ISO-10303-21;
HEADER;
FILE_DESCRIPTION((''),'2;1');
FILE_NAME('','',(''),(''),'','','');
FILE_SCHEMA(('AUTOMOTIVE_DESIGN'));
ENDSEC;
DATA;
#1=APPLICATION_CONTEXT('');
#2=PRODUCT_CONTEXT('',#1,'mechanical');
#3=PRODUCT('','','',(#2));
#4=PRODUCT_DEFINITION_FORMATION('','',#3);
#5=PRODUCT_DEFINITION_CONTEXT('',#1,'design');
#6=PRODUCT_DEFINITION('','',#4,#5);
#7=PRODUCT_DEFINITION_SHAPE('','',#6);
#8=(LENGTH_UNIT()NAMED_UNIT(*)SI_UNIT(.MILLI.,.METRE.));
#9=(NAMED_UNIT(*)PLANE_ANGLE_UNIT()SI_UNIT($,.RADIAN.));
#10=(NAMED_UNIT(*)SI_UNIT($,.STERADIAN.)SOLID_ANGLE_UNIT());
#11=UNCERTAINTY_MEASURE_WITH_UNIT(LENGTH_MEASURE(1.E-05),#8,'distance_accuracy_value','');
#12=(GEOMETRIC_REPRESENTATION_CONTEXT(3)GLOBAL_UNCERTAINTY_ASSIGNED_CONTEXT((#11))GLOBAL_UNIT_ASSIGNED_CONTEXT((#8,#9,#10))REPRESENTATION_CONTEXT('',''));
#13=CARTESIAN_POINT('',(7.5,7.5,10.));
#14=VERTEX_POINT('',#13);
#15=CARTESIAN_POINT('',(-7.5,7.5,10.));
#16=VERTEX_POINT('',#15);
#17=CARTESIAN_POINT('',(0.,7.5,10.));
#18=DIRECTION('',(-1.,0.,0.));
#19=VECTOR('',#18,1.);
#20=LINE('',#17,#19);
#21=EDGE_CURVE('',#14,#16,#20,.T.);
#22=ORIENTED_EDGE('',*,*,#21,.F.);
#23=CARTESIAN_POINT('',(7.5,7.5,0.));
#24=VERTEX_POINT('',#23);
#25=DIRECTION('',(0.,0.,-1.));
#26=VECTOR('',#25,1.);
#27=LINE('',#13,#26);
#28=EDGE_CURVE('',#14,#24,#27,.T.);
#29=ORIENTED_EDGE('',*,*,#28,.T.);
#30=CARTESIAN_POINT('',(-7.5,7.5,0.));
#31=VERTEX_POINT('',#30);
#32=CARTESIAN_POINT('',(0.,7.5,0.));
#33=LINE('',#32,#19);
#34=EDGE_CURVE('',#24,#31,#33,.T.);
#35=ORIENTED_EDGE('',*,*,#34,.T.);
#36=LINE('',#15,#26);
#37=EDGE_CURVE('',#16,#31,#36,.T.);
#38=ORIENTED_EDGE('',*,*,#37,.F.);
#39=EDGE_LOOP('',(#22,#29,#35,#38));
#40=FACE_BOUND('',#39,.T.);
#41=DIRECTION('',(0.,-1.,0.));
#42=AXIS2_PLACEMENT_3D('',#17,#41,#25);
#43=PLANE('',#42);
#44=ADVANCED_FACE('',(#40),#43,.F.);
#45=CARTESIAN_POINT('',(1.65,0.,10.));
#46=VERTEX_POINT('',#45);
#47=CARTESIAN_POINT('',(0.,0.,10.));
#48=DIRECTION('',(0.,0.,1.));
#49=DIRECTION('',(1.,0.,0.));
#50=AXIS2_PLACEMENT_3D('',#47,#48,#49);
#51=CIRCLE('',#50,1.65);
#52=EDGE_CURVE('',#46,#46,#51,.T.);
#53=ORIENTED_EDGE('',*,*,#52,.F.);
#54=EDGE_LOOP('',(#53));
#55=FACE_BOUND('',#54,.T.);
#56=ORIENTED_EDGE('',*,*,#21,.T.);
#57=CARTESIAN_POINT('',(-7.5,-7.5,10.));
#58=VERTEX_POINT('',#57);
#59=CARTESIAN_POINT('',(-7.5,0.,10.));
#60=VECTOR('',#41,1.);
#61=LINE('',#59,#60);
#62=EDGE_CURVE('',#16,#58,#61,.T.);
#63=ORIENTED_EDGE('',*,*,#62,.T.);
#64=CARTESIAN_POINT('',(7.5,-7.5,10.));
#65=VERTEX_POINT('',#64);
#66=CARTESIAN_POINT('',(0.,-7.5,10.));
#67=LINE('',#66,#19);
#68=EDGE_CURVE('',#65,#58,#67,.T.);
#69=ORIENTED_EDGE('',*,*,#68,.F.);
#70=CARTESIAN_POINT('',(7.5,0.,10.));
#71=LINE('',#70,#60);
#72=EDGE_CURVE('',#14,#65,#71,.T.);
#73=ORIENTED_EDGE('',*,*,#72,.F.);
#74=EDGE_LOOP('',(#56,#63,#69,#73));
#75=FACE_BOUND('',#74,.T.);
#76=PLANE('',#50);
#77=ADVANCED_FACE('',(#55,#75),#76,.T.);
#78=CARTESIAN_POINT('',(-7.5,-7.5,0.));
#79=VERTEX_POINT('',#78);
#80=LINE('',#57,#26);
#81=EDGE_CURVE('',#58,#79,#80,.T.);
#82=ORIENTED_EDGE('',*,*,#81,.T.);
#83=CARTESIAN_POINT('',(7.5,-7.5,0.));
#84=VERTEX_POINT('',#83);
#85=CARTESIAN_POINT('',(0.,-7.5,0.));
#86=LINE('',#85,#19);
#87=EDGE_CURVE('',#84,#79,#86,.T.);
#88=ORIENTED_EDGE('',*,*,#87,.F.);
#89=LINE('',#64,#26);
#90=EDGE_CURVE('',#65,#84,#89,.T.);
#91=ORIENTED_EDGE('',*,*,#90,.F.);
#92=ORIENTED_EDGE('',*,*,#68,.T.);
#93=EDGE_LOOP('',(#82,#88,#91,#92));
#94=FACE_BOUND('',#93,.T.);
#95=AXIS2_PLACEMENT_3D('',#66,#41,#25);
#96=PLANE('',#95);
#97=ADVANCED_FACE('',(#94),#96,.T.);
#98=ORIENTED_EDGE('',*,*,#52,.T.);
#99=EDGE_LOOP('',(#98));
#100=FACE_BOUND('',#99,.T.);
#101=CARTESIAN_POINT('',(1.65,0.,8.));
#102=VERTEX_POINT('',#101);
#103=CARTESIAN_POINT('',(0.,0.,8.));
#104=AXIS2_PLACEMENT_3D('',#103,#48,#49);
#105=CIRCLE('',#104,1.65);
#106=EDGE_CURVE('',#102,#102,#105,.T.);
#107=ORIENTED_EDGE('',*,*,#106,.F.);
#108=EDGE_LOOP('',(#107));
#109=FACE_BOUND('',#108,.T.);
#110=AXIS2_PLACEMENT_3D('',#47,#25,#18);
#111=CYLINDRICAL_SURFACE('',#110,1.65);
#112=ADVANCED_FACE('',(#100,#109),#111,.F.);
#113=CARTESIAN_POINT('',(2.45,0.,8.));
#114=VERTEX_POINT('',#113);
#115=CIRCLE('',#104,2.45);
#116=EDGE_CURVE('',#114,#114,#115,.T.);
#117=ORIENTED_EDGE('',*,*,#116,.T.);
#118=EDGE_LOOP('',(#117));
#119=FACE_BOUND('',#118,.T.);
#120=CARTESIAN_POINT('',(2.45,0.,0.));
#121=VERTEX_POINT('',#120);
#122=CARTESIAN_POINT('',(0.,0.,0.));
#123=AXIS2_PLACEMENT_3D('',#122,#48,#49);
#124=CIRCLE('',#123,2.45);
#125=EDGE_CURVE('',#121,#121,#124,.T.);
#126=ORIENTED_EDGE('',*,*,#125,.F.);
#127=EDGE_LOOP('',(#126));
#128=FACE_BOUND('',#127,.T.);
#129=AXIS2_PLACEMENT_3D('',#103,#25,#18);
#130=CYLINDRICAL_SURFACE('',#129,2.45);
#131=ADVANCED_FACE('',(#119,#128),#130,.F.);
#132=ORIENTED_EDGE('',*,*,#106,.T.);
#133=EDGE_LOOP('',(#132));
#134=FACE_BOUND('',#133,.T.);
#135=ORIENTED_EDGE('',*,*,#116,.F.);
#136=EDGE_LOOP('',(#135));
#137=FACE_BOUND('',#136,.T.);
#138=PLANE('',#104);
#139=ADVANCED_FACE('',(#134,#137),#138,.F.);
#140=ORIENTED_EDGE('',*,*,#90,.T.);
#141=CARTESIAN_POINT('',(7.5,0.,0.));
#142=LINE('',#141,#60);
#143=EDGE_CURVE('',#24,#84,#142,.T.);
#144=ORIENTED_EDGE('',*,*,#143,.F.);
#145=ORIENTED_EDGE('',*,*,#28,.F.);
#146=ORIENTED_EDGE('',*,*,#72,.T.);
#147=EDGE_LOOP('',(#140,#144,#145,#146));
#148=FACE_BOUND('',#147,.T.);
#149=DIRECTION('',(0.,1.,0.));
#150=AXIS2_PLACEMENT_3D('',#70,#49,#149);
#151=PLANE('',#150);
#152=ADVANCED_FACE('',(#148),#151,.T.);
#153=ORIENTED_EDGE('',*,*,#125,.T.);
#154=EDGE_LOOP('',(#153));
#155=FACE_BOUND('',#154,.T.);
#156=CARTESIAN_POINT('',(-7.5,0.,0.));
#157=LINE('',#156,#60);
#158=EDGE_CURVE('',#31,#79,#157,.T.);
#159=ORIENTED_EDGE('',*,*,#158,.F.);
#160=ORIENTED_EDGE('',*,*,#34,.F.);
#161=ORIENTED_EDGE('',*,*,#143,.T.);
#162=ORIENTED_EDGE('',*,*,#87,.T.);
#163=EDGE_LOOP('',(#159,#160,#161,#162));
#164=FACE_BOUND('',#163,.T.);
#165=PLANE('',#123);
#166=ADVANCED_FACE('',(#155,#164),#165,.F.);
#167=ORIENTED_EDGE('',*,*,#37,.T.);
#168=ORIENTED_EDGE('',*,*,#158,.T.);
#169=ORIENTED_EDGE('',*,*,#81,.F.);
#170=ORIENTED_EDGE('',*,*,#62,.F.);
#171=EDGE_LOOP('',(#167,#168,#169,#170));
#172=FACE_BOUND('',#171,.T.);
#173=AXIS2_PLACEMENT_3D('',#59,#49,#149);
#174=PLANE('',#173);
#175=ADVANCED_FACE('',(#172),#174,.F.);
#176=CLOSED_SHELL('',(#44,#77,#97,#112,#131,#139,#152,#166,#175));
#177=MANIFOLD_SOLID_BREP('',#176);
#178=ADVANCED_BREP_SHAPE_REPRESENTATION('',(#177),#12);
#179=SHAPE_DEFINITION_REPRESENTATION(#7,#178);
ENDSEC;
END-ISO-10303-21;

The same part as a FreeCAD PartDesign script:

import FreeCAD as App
import Part
import Sketcher
from FreeCAD import Vector


def add_polygon(sketch, points):
    """Adds a closed chain of lines whose ends are joined by coincident constraints."""
    first, n = sketch.GeometryCount, len(points)
    for a, b in zip(points, points[1:] + points[:1]):
        sketch.addGeometry(Part.LineSegment(App.Vector(*a, 0), App.Vector(*b, 0)), False)
    for i in range(n):
        sketch.addConstraint(Sketcher.Constraint("Coincident", first + i, 2, first + (i + 1) % n, 1))

doc = App.newDocument("Part")
body = doc.addObject("PartDesign::Body", "Body")

sketch1 = body.newObject("Sketcher::SketchObject", "Sketch")
sketch1.AttachmentSupport = (doc.getObject("XY_Plane"), [""])
sketch1.MapMode = "FlatFace"
add_polygon(sketch1, [(-7.5, 7.5), (-7.5, -7.5), (7.5, -7.5), (7.5, 7.5)])
sketch1.addGeometry(Part.Circle(Vector(0, 0, 0), Vector(0, 0, 1), 1.65), False)
sketch1.addConstraint([
    Sketcher.Constraint("Vertical", 0),
    Sketcher.Constraint("Horizontal", 1),
    Sketcher.Constraint("Vertical", 2),
    Sketcher.Constraint("Horizontal", 3),
    Sketcher.Constraint("Coincident", 4, 3, -1, 1),
    Sketcher.Constraint("Symmetric", 0, 2, 2, 2, -1, 1),
    Sketcher.Constraint("Equal", 3, 0),
    Sketcher.Constraint("Diameter", 4, 3.3),
    Sketcher.Constraint("DistanceX", 1, 1, 1, 2, 15.0),
])
pad1 = body.newObject("PartDesign::Pad", "Pad")
pad1.Profile = sketch1
pad1.Length = 10

sketch2 = body.newObject("Sketcher::SketchObject", "Sketch001")
sketch2.AttachmentSupport = (doc.getObject("XY_Plane"), [""])
sketch2.MapMode = "FlatFace"
sketch2.addGeometry([
    Part.Circle(Vector(0, 0, 0), Vector(0, 0, 1), 2.45),
    Part.Circle(Vector(0, 0, 0), Vector(0, 0, 1), 1.65),
], False)
sketch2.addConstraint([
    Sketcher.Constraint("Coincident", 0, 3, -1, 1),
    Sketcher.Constraint("Coincident", 1, 3, -1, 1),
    Sketcher.Constraint("Diameter", 0, 4.9),
    Sketcher.Constraint("Diameter", 1, 3.3),
])
pocket1 = body.newObject("PartDesign::Pocket", "Pocket")
pocket1.Profile = sketch2
pocket1.Length = 8
pocket1.Reversed = True

doc.recompute()
